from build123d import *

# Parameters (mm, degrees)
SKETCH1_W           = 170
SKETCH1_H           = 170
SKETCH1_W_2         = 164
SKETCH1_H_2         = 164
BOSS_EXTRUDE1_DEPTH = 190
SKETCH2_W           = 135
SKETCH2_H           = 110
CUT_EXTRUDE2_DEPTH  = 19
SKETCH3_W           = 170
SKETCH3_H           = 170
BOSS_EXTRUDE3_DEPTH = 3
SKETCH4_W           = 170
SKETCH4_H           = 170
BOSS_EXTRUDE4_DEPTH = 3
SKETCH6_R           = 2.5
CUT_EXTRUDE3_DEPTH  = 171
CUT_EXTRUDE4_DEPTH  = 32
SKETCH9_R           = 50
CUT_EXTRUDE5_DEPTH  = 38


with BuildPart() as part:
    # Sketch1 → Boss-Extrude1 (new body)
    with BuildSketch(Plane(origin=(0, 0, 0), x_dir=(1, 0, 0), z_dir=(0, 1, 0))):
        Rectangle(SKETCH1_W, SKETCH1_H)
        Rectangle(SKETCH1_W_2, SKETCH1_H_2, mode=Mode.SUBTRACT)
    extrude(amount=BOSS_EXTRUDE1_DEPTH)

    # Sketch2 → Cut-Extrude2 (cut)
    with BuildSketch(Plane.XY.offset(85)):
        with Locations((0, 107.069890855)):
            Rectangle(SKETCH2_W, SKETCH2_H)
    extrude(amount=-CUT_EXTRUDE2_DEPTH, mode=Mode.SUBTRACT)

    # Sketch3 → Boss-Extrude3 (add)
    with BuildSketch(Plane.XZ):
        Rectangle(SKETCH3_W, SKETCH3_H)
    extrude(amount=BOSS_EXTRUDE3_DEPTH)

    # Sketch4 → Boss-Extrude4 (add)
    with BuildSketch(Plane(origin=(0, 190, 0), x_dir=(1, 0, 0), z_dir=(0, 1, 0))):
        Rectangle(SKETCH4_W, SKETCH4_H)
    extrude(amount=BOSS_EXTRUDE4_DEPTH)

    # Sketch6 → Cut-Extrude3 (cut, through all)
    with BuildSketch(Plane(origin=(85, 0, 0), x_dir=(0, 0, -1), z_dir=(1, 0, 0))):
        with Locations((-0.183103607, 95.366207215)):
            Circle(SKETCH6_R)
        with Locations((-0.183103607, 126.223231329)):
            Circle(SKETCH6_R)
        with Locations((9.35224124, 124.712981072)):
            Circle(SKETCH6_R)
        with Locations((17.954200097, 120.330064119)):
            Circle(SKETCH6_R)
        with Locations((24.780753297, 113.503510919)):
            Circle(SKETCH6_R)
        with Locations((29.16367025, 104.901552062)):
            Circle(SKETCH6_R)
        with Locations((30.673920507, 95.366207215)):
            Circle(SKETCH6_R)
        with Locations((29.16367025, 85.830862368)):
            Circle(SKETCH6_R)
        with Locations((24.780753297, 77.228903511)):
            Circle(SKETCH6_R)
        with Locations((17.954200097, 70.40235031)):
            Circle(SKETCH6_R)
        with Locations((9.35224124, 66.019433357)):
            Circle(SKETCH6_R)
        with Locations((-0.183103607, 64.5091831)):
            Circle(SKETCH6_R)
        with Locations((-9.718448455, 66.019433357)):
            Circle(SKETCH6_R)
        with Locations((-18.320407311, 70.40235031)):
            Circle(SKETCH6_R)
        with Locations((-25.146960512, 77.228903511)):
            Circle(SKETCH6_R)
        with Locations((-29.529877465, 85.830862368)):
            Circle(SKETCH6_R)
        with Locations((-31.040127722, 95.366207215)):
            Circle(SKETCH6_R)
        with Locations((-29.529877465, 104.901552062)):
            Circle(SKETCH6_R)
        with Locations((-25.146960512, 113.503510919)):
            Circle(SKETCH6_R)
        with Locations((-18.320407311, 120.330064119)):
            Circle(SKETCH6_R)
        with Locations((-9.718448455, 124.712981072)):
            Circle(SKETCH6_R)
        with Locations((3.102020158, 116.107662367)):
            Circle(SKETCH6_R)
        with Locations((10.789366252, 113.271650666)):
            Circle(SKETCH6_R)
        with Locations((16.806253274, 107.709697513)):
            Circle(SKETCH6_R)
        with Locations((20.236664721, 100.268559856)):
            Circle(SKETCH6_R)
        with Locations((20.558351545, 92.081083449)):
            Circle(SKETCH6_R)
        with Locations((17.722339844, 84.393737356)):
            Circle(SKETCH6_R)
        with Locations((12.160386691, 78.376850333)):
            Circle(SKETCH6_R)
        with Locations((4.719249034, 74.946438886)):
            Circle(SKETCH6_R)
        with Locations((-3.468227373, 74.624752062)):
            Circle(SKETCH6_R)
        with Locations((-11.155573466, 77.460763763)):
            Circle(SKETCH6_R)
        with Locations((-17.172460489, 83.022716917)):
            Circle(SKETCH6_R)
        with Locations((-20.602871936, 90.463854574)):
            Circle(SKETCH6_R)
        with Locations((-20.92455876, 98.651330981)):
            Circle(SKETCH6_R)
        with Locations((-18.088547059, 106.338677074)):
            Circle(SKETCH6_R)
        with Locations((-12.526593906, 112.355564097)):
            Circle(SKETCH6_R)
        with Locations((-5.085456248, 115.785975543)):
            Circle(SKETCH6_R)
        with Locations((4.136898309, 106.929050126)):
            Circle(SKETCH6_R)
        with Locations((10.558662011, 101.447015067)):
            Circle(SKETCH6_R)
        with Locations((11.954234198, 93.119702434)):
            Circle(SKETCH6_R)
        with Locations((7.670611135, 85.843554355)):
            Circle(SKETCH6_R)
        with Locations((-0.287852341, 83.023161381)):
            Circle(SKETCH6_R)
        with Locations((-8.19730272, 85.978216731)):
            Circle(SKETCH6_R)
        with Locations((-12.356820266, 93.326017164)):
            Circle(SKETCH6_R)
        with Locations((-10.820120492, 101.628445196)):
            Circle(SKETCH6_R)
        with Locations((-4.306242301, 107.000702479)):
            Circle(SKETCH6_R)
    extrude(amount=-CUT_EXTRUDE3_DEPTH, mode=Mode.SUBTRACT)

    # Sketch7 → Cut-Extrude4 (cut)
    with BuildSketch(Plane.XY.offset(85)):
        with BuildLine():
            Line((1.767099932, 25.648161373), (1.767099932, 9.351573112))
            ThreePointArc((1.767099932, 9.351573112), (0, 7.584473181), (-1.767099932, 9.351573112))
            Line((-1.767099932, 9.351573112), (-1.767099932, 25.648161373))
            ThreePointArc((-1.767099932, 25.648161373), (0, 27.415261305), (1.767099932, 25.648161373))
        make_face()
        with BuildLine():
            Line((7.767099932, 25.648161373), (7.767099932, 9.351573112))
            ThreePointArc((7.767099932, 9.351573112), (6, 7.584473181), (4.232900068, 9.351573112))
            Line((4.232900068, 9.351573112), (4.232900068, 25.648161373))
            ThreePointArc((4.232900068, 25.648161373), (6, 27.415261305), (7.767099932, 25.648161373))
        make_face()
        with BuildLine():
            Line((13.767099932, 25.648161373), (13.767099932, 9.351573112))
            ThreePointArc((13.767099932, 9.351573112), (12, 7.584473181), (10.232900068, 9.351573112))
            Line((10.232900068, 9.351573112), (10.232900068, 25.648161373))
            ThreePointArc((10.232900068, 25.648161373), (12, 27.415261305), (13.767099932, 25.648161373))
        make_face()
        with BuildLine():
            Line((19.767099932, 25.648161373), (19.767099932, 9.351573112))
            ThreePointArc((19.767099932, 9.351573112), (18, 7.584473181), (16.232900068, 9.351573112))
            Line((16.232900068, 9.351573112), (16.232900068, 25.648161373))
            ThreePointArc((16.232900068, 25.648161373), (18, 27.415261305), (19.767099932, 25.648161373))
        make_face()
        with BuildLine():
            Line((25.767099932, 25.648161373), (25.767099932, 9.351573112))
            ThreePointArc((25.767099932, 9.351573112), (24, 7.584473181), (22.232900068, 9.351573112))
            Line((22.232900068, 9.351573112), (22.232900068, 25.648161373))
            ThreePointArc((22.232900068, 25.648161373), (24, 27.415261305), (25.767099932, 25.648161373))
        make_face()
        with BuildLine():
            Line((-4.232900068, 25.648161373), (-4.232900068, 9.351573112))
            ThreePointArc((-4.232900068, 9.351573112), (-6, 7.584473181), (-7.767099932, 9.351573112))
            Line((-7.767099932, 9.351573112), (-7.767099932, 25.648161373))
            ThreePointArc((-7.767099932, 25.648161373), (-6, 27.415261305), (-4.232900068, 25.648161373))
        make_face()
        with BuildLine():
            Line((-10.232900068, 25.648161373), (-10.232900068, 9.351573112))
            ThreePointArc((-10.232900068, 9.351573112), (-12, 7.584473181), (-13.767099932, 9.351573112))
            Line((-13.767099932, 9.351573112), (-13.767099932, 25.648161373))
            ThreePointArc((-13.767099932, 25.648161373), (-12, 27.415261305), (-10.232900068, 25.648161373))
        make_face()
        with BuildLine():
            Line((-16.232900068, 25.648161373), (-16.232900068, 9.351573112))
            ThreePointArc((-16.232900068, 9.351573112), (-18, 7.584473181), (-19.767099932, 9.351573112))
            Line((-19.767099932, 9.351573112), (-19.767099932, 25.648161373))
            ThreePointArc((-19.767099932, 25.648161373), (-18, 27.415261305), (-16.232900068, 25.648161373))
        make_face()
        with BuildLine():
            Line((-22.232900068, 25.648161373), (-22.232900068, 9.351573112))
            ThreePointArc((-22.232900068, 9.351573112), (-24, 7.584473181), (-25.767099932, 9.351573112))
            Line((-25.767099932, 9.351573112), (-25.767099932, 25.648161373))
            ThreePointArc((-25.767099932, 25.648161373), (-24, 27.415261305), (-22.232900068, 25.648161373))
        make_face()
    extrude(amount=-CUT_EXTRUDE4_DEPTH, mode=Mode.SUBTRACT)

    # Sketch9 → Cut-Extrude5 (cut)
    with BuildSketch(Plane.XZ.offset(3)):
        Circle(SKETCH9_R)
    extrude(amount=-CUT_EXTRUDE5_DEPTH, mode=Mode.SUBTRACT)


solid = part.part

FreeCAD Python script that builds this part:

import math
import FreeCAD as App
import Part
import Sketcher

V = App.Vector

doc = App.newDocument("Part")
body = doc.addObject("PartDesign::Body", "Body")

# Sketch on XZ plane
sketch1 = doc.addObject("Sketcher::SketchObject", "Sketch")
body.addObject(sketch1)
sketch1.AttachmentSupport = (doc.XZ_Plane, [""])
sketch1.MapMode = "FlatFace"
sketch1.addGeometry([
    Part.LineSegment(V(-85, -85, 0), V(-85, 85, 0)),  # 0
    Part.LineSegment(V(-85, 85, 0), V(85, 85, 0)),  # 1
    Part.LineSegment(V(85, 85, 0), V(85, -85, 0)),  # 2
    Part.LineSegment(V(85, -85, 0), V(-85, -85, 0)),  # 3
    Part.LineSegment(V(82, 82, 0), V(-82, 82, 0)),  # 4
    Part.LineSegment(V(-82, 82, 0), V(-82, -82, 0)),  # 5
    Part.LineSegment(V(-82, -82, 0), V(82, -82, 0)),  # 6
    Part.LineSegment(V(82, -82, 0), V(82, 82, 0)),  # 7
], False)
sketch1.addConstraint([
    Sketcher.Constraint("Coincident", 0, 2, 1, 1),
    Sketcher.Constraint("Coincident", 1, 2, 2, 1),
    Sketcher.Constraint("Coincident", 2, 2, 3, 1),
    Sketcher.Constraint("Coincident", 3, 2, 0, 1),
    Sketcher.Constraint("Coincident", 4, 2, 5, 1),
    Sketcher.Constraint("Coincident", 5, 2, 6, 1),
    Sketcher.Constraint("Coincident", 6, 2, 7, 1),
    Sketcher.Constraint("Coincident", 7, 2, 4, 1),
    Sketcher.Constraint("Vertical", 0),
    Sketcher.Constraint("Horizontal", 1),
    Sketcher.Constraint("Vertical", 2),
    Sketcher.Constraint("Horizontal", 3),
    Sketcher.Constraint("Horizontal", 4),
    Sketcher.Constraint("Vertical", 5),
    Sketcher.Constraint("Horizontal", 6),
    Sketcher.Constraint("Vertical", 7),
    Sketcher.Constraint("Symmetric", 0, 2, 2, 2, -1, 1),
    Sketcher.Constraint("Symmetric", 4, 2, 6, 2, -1, 1),
    Sketcher.Constraint("Equal", 3, 0),
    Sketcher.Constraint("Equal", 6, 5),
    Sketcher.Constraint("DistanceX", 1, 1, 1, 2, 170.0),
    Sketcher.Constraint("DistanceX", 4, 2, 4, 1, 164.0),
])
pad1 = doc.addObject("PartDesign::Pad", "Pad")
body.addObject(pad1)
pad1.Profile = sketch1
pad1.Length = 190
pad1.Reversed = True

# Sketch on XY plane
sketch2 = doc.addObject("Sketcher::SketchObject", "Sketch001")
body.addObject(sketch2)
sketch2.AttachmentSupport = (doc.XY_Plane, [""])
sketch2.MapMode = "FlatFace"
sketch2.AttachmentOffset = App.Placement(V(0, 0, 85), App.Rotation())
sketch2.addGeometry([
    Part.LineSegment(V(-68, 162, 0), V(-68, 52, 0)),
    Part.LineSegment(V(-68, 52, 0), V(68, 52, 0)),
    Part.LineSegment(V(68, 52, 0), V(68, 162, 0)),
    Part.LineSegment(V(68, 162, 0), V(-68, 162, 0)),
], False)
sketch2.addConstraint([
    Sketcher.Constraint("Coincident", 0, 2, 1, 1),
    Sketcher.Constraint("Coincident", 1, 2, 2, 1),
    Sketcher.Constraint("Coincident", 2, 2, 3, 1),
    Sketcher.Constraint("Coincident", 3, 2, 0, 1),
    Sketcher.Constraint("Vertical", 0),
    Sketcher.Constraint("Horizontal", 1),
    Sketcher.Constraint("Vertical", 2),
    Sketcher.Constraint("Horizontal", 3),
    Sketcher.Constraint("DistanceX", 1, 1, 1, 2, 135.0),
    Sketcher.Constraint("DistanceY", 0, 2, 0, 1, 110.0),
    Sketcher.Constraint("DistanceX", 0, 2, -1, 1, 67.5),
    Sketcher.Constraint("DistanceY", -1, 1, 0, 2, 52.069891),
])
pocket1 = doc.addObject("PartDesign::Pocket", "Pocket")
body.addObject(pocket1)
pocket1.Profile = sketch2
pocket1.Length = 19

# Sketch on XZ plane
sketch3 = doc.addObject("Sketcher::SketchObject", "Sketch002")
body.addObject(sketch3)
sketch3.AttachmentSupport = (doc.XZ_Plane, [""])
sketch3.MapMode = "FlatFace"
sketch3.addGeometry([
    Part.LineSegment(V(-85, 85, 0), V(-85, -85, 0)),
    Part.LineSegment(V(-85, -85, 0), V(85, -85, 0)),
    Part.LineSegment(V(85, -85, 0), V(85, 85, 0)),
    Part.LineSegment(V(85, 85, 0), V(-85, 85, 0)),
], False)
sketch3.addConstraint([
    Sketcher.Constraint("Coincident", 0, 2, 1, 1),
    Sketcher.Constraint("Coincident", 1, 2, 2, 1),
    Sketcher.Constraint("Coincident", 2, 2, 3, 1),
    Sketcher.Constraint("Coincident", 3, 2, 0, 1),
    Sketcher.Constraint("Vertical", 0),
    Sketcher.Constraint("Horizontal", 1),
    Sketcher.Constraint("Vertical", 2),
    Sketcher.Constraint("Horizontal", 3),
    Sketcher.Constraint("Symmetric", 0, 2, 2, 2, -1, 1),
    Sketcher.Constraint("Equal", 3, 0),
    Sketcher.Constraint("DistanceX", 1, 1, 1, 2, 170.0),
])
pad2 = doc.addObject("PartDesign::Pad", "Pad001")
body.addObject(pad2)
pad2.Profile = sketch3
pad2.Length = 3

# Sketch on XZ plane
sketch4 = doc.addObject("Sketcher::SketchObject", "Sketch003")
body.addObject(sketch4)
sketch4.AttachmentSupport = (doc.XZ_Plane, [""])
sketch4.MapMode = "FlatFace"
sketch4.AttachmentOffset = App.Placement(V(0, 0, -190), App.Rotation())
sketch4.addGeometry([
    Part.LineSegment(V(-85, -85, 0), V(-85, 85, 0)),
    Part.LineSegment(V(-85, 85, 0), V(85, 85, 0)),
    Part.LineSegment(V(85, 85, 0), V(85, -85, 0)),
    Part.LineSegment(V(85, -85, 0), V(-85, -85, 0)),
], False)
sketch4.addConstraint([
    Sketcher.Constraint("Coincident", 0, 2, 1, 1),
    Sketcher.Constraint("Coincident", 1, 2, 2, 1),
    Sketcher.Constraint("Coincident", 2, 2, 3, 1),
    Sketcher.Constraint("Coincident", 3, 2, 0, 1),
    Sketcher.Constraint("Vertical", 0),
    Sketcher.Constraint("Horizontal", 1),
    Sketcher.Constraint("Vertical", 2),
    Sketcher.Constraint("Horizontal", 3),
    Sketcher.Constraint("Symmetric", 0, 2, 2, 2, -1, 1),
    Sketcher.Constraint("Equal", 3, 0),
    Sketcher.Constraint("DistanceX", 1, 1, 1, 2, 170.0),
])
pad3 = doc.addObject("PartDesign::Pad", "Pad002")
body.addObject(pad3)
pad3.Profile = sketch4
pad3.Length = 3
pad3.Reversed = True

# Sketch on YZ plane
sketch5 = doc.addObject("Sketcher::SketchObject", "Sketch004")
body.addObject(sketch5)
sketch5.AttachmentSupport = (doc.YZ_Plane, [""])
sketch5.MapMode = "FlatFace"
sketch5.AttachmentOffset = App.Placement(V(0, 0, 85), App.Rotation())
sketch5.addGeometry([
    Part.Circle(V(95.4, 0.2, 0), V(0, 0, 1), 2.5),  # 0
    Part.Circle(V(126.2, 0.2, 0), V(0, 0, 1), 2.5),  # 1
    Part.Circle(V(124.7, -9.4, 0), V(0, 0, 1), 2.5),  # 2
    Part.Circle(V(120.3, -18, 0), V(0, 0, 1), 2.5),  # 3
    Part.Circle(V(113.5, -24.8, 0), V(0, 0, 1), 2.5),  # 4
    Part.Circle(V(104.9, -29.2, 0), V(0, 0, 1), 2.5),  # 5
    Part.Circle(V(95.4, -30.7, 0), V(0, 0, 1), 2.5),  # 6
    Part.Circle(V(85.8, -29.2, 0), V(0, 0, 1), 2.5),  # 7
    Part.Circle(V(77.2, -24.8, 0), V(0, 0, 1), 2.5),  # 8
    Part.Circle(V(70.4, -18, 0), V(0, 0, 1), 2.5),  # 9
    Part.Circle(V(66, -9.4, 0), V(0, 0, 1), 2.5),  # 10
    Part.Circle(V(64.5, 0.2, 0), V(0, 0, 1), 2.5),  # 11
    Part.Circle(V(66, 9.7, 0), V(0, 0, 1), 2.5),  # 12
    Part.Circle(V(70.4, 18.3, 0), V(0, 0, 1), 2.5),  # 13
    Part.Circle(V(77.2, 25.1, 0), V(0, 0, 1), 2.5),  # 14
    Part.Circle(V(85.8, 29.5, 0), V(0, 0, 1), 2.5),  # 15
    Part.Circle(V(95.4, 31, 0), V(0, 0, 1), 2.5),  # 16
    Part.Circle(V(104.9, 29.5, 0), V(0, 0, 1), 2.5),  # 17
    Part.Circle(V(113.5, 25.1, 0), V(0, 0, 1), 2.5),  # 18
    Part.Circle(V(120.3, 18.3, 0), V(0, 0, 1), 2.5),  # 19
    Part.Circle(V(124.7, 9.7, 0), V(0, 0, 1), 2.5),  # 20
    Part.Circle(V(116.1, -3.1, 0), V(0, 0, 1), 2.5),  # 21
    Part.Circle(V(113.3, -10.8, 0), V(0, 0, 1), 2.5),  # 22
    Part.Circle(V(107.7, -16.8, 0), V(0, 0, 1), 2.5),  # 23
    Part.Circle(V(100.3, -20.2, 0), V(0, 0, 1), 2.5),  # 24
    Part.Circle(V(92.1, -20.6, 0), V(0, 0, 1), 2.5),  # 25
    Part.Circle(V(84.4, -17.7, 0), V(0, 0, 1), 2.5),  # 26
    Part.Circle(V(78.4, -12.2, 0), V(0, 0, 1), 2.5),  # 27
    Part.Circle(V(74.9, -4.7, 0), V(0, 0, 1), 2.5),  # 28
    Part.Circle(V(74.6, 3.5, 0), V(0, 0, 1), 2.5),  # 29
    Part.Circle(V(77.5, 11.2, 0), V(0, 0, 1), 2.5),  # 30
    Part.Circle(V(83, 17.2, 0), V(0, 0, 1), 2.5),  # 31
    Part.Circle(V(90.5, 20.6, 0), V(0, 0, 1), 2.5),  # 32
    Part.Circle(V(98.7, 20.9, 0), V(0, 0, 1), 2.5),  # 33
    Part.Circle(V(106.3, 18.1, 0), V(0, 0, 1), 2.5),  # 34
    Part.Circle(V(112.4, 12.5, 0), V(0, 0, 1), 2.5),  # 35
    Part.Circle(V(115.8, 5.1, 0), V(0, 0, 1), 2.5),  # 36
    Part.Circle(V(106.9, -4.1, 0), V(0, 0, 1), 2.5),  # 37
    Part.Circle(V(101.4, -10.6, 0), V(0, 0, 1), 2.5),  # 38
    Part.Circle(V(93.1, -12, 0), V(0, 0, 1), 2.5),  # 39
    Part.Circle(V(85.8, -7.7, 0), V(0, 0, 1), 2.5),  # 40
    Part.Circle(V(83, 0.3, 0), V(0, 0, 1), 2.5),  # 41
    Part.Circle(V(86, 8.2, 0), V(0, 0, 1), 2.5),  # 42
    Part.Circle(V(93.3, 12.4, 0), V(0, 0, 1), 2.5),  # 43
    Part.Circle(V(101.6, 10.8, 0), V(0, 0, 1), 2.5),  # 44
    Part.Circle(V(107, 4.3, 0), V(0, 0, 1), 2.5),  # 45
], False)
sketch5.addConstraint([
    Sketcher.Constraint("Equal", 0, 1),
    Sketcher.Constraint("Equal", 1, 2),
    Sketcher.Constraint("Equal", 2, 3),
    Sketcher.Constraint("Equal", 3, 4),
    Sketcher.Constraint("Equal", 4, 5),
    Sketcher.Constraint("Equal", 5, 6),
    Sketcher.Constraint("Equal", 6, 7),
    Sketcher.Constraint("Equal", 7, 8),
    Sketcher.Constraint("Equal", 8, 9),
    Sketcher.Constraint("Equal", 9, 10),
    Sketcher.Constraint("Equal", 10, 11),
    Sketcher.Constraint("Equal", 11, 12),
    Sketcher.Constraint("Equal", 12, 13),
    Sketcher.Constraint("Equal", 13, 14),
    Sketcher.Constraint("Equal", 14, 15),
    Sketcher.Constraint("Equal", 15, 16),
    Sketcher.Constraint("Equal", 16, 17),
    Sketcher.Constraint("Equal", 17, 18),
    Sketcher.Constraint("Equal", 18, 19),
    Sketcher.Constraint("Equal", 19, 20),
    Sketcher.Constraint("Equal", 20, 21),
    Sketcher.Constraint("Equal", 21, 22),
    Sketcher.Constraint("Equal", 22, 23),
    Sketcher.Constraint("Equal", 23, 24),
    Sketcher.Constraint("Equal", 24, 25),
    Sketcher.Constraint("Equal", 25, 26),
    Sketcher.Constraint("Equal", 26, 27),
    Sketcher.Constraint("Equal", 27, 28),
    Sketcher.Constraint("Equal", 28, 29),
    Sketcher.Constraint("Equal", 29, 30),
    Sketcher.Constraint("Equal", 30, 31),
    Sketcher.Constraint("Equal", 31, 32),
    Sketcher.Constraint("Equal", 32, 33),
    Sketcher.Constraint("Equal", 33, 34),
    Sketcher.Constraint("Equal", 34, 35),
    Sketcher.Constraint("Equal", 35, 36),
    Sketcher.Constraint("Equal", 36, 37),
    Sketcher.Constraint("Equal", 37, 38),
    Sketcher.Constraint("Equal", 38, 39),
    Sketcher.Constraint("Equal", 39, 40),
    Sketcher.Constraint("Equal", 40, 41),
    Sketcher.Constraint("Equal", 41, 42),
    Sketcher.Constraint("Equal", 42, 43),
    Sketcher.Constraint("Equal", 43, 44),
    Sketcher.Constraint("Equal", 44, 45),
    Sketcher.Constraint("Horizontal", 0, 3, 1, 3),
    Sketcher.Constraint("Horizontal", 5, 3, 7, 3),
    Sketcher.Constraint("Horizontal", 4, 3, 8, 3),
    Sketcher.Constraint("Horizontal", 3, 3, 9, 3),
    Sketcher.Constraint("Horizontal", 2, 3, 10, 3),
    Sketcher.Constraint("Horizontal", 1, 3, 11, 3),
    Sketcher.Constraint("Horizontal", 15, 3, 17, 3),
    Sketcher.Constraint("Horizontal", 14, 3, 18, 3),
    Sketcher.Constraint("Horizontal", 13, 3, 19, 3),
    Sketcher.Constraint("Horizontal", 12, 3, 20, 3),
    Sketcher.Constraint("Vertical", 0, 3, 6, 3),
    Sketcher.Constraint("Vertical", 10, 3, 12, 3),
    Sketcher.Constraint("Vertical", 9, 3, 13, 3),
    Sketcher.Constraint("Vertical", 8, 3, 14, 3),
    Sketcher.Constraint("Vertical", 7, 3, 15, 3),
    Sketcher.Constraint("Vertical", 6, 3, 16, 3),
    Sketcher.Constraint("Vertical", 5, 3, 17, 3),
    Sketcher.Constraint("Vertical", 4, 3, 18, 3),
    Sketcher.Constraint("Vertical", 3, 3, 19, 3),
    Sketcher.Constraint("Vertical", 2, 3, 20, 3),
    Sketcher.Constraint("Diameter", 0, 5.0),
    Sketcher.Constraint("DistanceY", 37, 3, 0, 3, 4.320002),
    Sketcher.Constraint("DistanceY", 3, 3, -1, 1, 17.9542),
    Sketcher.Constraint("DistanceY", 37, 3, -1, 1, 4.136898),
    Sketcher.Constraint("DistanceX", 7, 3, 3, 3, 34.499202),
    Sketcher.Constraint("DistanceX", 9, 3, 5, 3, 34.499202),
    Sketcher.Constraint("DistanceY", 8, 3, 12, 3, 34.499202),
    Sketcher.Constraint("DistanceY", 10, 3, 14, 3, 34.499202),
    Sketcher.Constraint("DistanceX", 21, 3, 3, 3, 4.222402),
    Sketcher.Constraint("DistanceY", 4, 3, 23, 3, 7.9745),
    Sketcher.Constraint("DistanceY", 24, 3, 22, 3, 9.447298),
    Sketcher.Constraint("DistanceY", 8, 3, 25, 3, 4.222402),
    Sketcher.Constraint("DistanceX", 9, 3, 27, 3, 7.9745),
    Sketcher.Constraint("DistanceX", 28, 3, 26, 3, 9.447298),
    Sketcher.Constraint("DistanceX", 13, 3, 29, 3, 4.222402),
    Sketcher.Constraint("DistanceY", 31, 3, 14, 3, 7.9745),
    Sketcher.Constraint("DistanceY", 30, 3, 32, 3, 9.447298),
    Sketcher.Constraint("DistanceY", 33, 3, 18, 3, 4.222402),
    Sketcher.Constraint("DistanceX", 35, 3, 19, 3, 7.9745),
    Sketcher.Constraint("DistanceX", 37, 3, 22, 3, 6.342601),
    Sketcher.Constraint("DistanceY", 28, 3, 41, 3, 5.007101),
    Sketcher.Constraint("DistanceX", 31, 3, 42, 3, 2.9555),
    Sketcher.Constraint("DistanceY", 0, 3, 42, 3, 8.014199),
    Sketcher.Constraint("DistanceX", 42, 3, 43, 3, 7.3478),
    Sketcher.Constraint("DistanceY", 44, 3, 43, 3, 1.5367),
    Sketcher.Constraint("DistanceX", -1, 1, 1, 3, 126.223231),
    Sketcher.Constraint("DistanceX", -1, 1, 2, 3, 124.712981),
    Sketcher.Constraint("DistanceY", 2, 3, -1, 1, 9.352241),
    Sketcher.Constraint("DistanceX", -1, 1, 4, 3, 113.503511),
    Sketcher.Constraint("DistanceY", 5, 3, -1, 1, 29.16367),
    Sketcher.Constraint("DistanceY", 6, 3, -1, 1, 30.673921),
    Sketcher.Constraint("DistanceX", -1, 1, 9, 3, 70.40235),
    Sketcher.Constraint("DistanceY", -1, 1, 12, 3, 9.718448),
    Sketcher.Constraint("DistanceY", 21, 3, -1, 1, 3.10202),
    Sketcher.Constraint("DistanceX", -1, 1, 22, 3, 113.271651),
    Sketcher.Constraint("DistanceX", -1, 1, 24, 3, 100.26856),
    Sketcher.Constraint("DistanceY", 26, 3, -1, 1, 17.72234),
    Sketcher.Constraint("DistanceX", -1, 1, 28, 3, 74.946439),
    Sketcher.Constraint("DistanceY", 28, 3, -1, 1, 4.719249),
    Sketcher.Constraint("DistanceY", -1, 1, 32, 3, 20.602872),
    Sketcher.Constraint("DistanceX", -1, 1, 33, 3, 98.651331),
    Sketcher.Constraint("DistanceY", 40, 3, -1, 1, 7.670611),
    Sketcher.Constraint("DistanceX", -1, 1, 41, 3, 83.023161),
    Sketcher.Constraint("DistanceY", -1, 1, 43, 3, 12.35682),
    Sketcher.Constraint("DistanceX", 7, 3, 5, 3, 19.07069),
    Sketcher.Constraint("DistanceX", 8, 3, 7, 3, 8.601959),
    Sketcher.Constraint("DistanceX", 10, 3, 8, 3, 11.20947),
    Sketcher.Constraint("DistanceX", 11, 3, 10, 3, 1.51025),
    Sketcher.Constraint("DistanceY", 12, 3, 13, 3, 8.601959),
    Sketcher.Constraint("DistanceY", 13, 3, 15, 3, 11.20947),
    Sketcher.Constraint("DistanceY", 15, 3, 16, 3, 1.51025),
    Sketcher.Constraint("DistanceY", 22, 3, 1, 3, 10.97247),
    Sketcher.Constraint("DistanceX", 7, 3, 25, 3, 6.250221),
    Sketcher.Constraint("DistanceY", 29, 3, 12, 3, 6.250221),
    Sketcher.Constraint("DistanceX", 29, 3, 30, 3, 2.836012),
    Sketcher.Constraint("DistanceX", 14, 3, 32, 3, 13.234951),
    Sketcher.Constraint("DistanceY", 34, 3, 33, 3, 2.836012),
    Sketcher.Constraint("DistanceX", 35, 3, 36, 3, 3.430411),
    Sketcher.Constraint("DistanceY", 36, 3, 19, 3, 13.234951),
    Sketcher.Constraint("DistanceY", 23, 3, 38, 3, 6.247591),
    Sketcher.Constraint("DistanceX", 25, 3, 39, 3, 1.038619),
    Sketcher.Constraint("DistanceY", 24, 3, 39, 3, 8.282431),
    Sketcher.Constraint("DistanceX", 40, 3, 39, 3, 7.276148),
    Sketcher.Constraint("DistanceX", 42, 3, 0, 3, 9.38799),
    Sketcher.Constraint("DistanceX", 43, 3, 44, 3, 8.302428),
    Sketcher.Constraint("DistanceX", 44, 3, 34, 3, 4.710232),
    Sketcher.Constraint("DistanceX", 44, 3, 35, 3, 10.727119),
    Sketcher.Constraint("DistanceY", 45, 3, 44, 3, 6.513878),
    Sketcher.Constraint("DistanceX", 45, 3, 35, 3, 5.354862),
    Sketcher.Constraint("DistanceY", 45, 3, 35, 3, 8.220352),
    Sketcher.Constraint("DistanceX", -1, 1, 23, 3, 107.709698),
    Sketcher.Constraint("DistanceY", 27, 3, -1, 1, 12.160387),
    Sketcher.Constraint("DistanceX", -1, 1, 38, 3, 101.447015),
])
pocket2 = doc.addObject("PartDesign::Pocket", "Pocket001")
body.addObject(pocket2)
pocket2.Profile = sketch5
pocket2.Type = "ThroughAll"

# Sketch on XY plane
sketch6 = doc.addObject("Sketcher::SketchObject", "Sketch005")
body.addObject(sketch6)
sketch6.AttachmentSupport = (doc.XY_Plane, [""])
sketch6.MapMode = "FlatFace"
sketch6.AttachmentOffset = App.Placement(V(0, 0, 85), App.Rotation())
sketch6.addGeometry([
    Part.LineSegment(V(1.8, 9.4, 0), V(1.8, 25.6, 0)),  # 0
    Part.ArcOfCircle(Part.Circle(V(0, 25.6, 0), V(0, 0, 1), 1.8), math.radians(0), math.radians(180)),  # 1
    Part.LineSegment(V(-1.8, 25.6, 0), V(-1.8, 9.4, 0)),  # 2
    Part.ArcOfCircle(Part.Circle(V(0, 9.4, 0), V(0, 0, 1), 1.8), math.radians(-180), math.radians(0)),  # 3
    Part.LineSegment(V(7.8, 9.4, 0), V(7.8, 25.6, 0)),  # 4
    Part.ArcOfCircle(Part.Circle(V(6, 25.6, 0), V(0, 0, 1), 1.8), math.radians(0), math.radians(180)),  # 5
    Part.LineSegment(V(4.2, 25.6, 0), V(4.2, 9.4, 0)),  # 6
    Part.ArcOfCircle(Part.Circle(V(6, 9.4, 0), V(0, 0, 1), 1.8), math.radians(-180), math.radians(0)),  # 7
    Part.LineSegment(V(13.8, 9.4, 0), V(13.8, 25.6, 0)),  # 8
    Part.ArcOfCircle(Part.Circle(V(12, 25.6, 0), V(0, 0, 1), 1.8), math.radians(0), math.radians(180)),  # 9
    Part.LineSegment(V(10.2, 25.6, 0), V(10.2, 9.4, 0)),  # 10
    Part.ArcOfCircle(Part.Circle(V(12, 9.4, 0), V(0, 0, 1), 1.8), math.radians(-180), math.radians(0)),  # 11
    Part.LineSegment(V(19.8, 9.4, 0), V(19.8, 25.6, 0)),  # 12
    Part.ArcOfCircle(Part.Circle(V(18, 25.6, 0), V(0, 0, 1), 1.8), math.radians(0), math.radians(180)),  # 13
    Part.LineSegment(V(16.2, 25.6, 0), V(16.2, 9.4, 0)),  # 14
    Part.ArcOfCircle(Part.Circle(V(18, 9.4, 0), V(0, 0, 1), 1.8), math.radians(-180), math.radians(0)),  # 15
    Part.LineSegment(V(25.8, 9.4, 0), V(25.8, 25.6, 0)),  # 16
    Part.ArcOfCircle(Part.Circle(V(24, 25.6, 0), V(0, 0, 1), 1.8), math.radians(0), math.radians(180)),  # 17
    Part.LineSegment(V(22.2, 25.6, 0), V(22.2, 9.4, 0)),  # 18
    Part.ArcOfCircle(Part.Circle(V(24, 9.4, 0), V(0, 0, 1), 1.8), math.radians(-180), math.radians(0)),  # 19
    Part.LineSegment(V(-4.2, 9.4, 0), V(-4.2, 25.6, 0)),  # 20
    Part.ArcOfCircle(Part.Circle(V(-6, 25.6, 0), V(0, 0, 1), 1.8), math.radians(0), math.radians(180)),  # 21
    Part.LineSegment(V(-7.8, 25.6, 0), V(-7.8, 9.4, 0)),  # 22
    Part.ArcOfCircle(Part.Circle(V(-6, 9.4, 0), V(0, 0, 1), 1.8), math.radians(-180), math.radians(0)),  # 23
    Part.LineSegment(V(-10.2, 9.4, 0), V(-10.2, 25.6, 0)),  # 24
    Part.ArcOfCircle(Part.Circle(V(-12, 25.6, 0), V(0, 0, 1), 1.8), math.radians(0), math.radians(180)),  # 25
    Part.LineSegment(V(-13.8, 25.6, 0), V(-13.8, 9.4, 0)),  # 26
    Part.ArcOfCircle(Part.Circle(V(-12, 9.4, 0), V(0, 0, 1), 1.8), math.radians(-180), math.radians(0)),  # 27
    Part.LineSegment(V(-16.2, 9.4, 0), V(-16.2, 25.6, 0)),  # 28
    Part.ArcOfCircle(Part.Circle(V(-18, 25.6, 0), V(0, 0, 1), 1.8), math.radians(0), math.radians(180)),  # 29
    Part.LineSegment(V(-19.8, 25.6, 0), V(-19.8, 9.4, 0)),  # 30
    Part.ArcOfCircle(Part.Circle(V(-18, 9.4, 0), V(0, 0, 1), 1.8), math.radians(-180), math.radians(0)),  # 31
    Part.LineSegment(V(-22.2, 9.4, 0), V(-22.2, 25.6, 0)),  # 32
    Part.ArcOfCircle(Part.Circle(V(-24, 25.6, 0), V(0, 0, 1), 1.8), math.radians(0), math.radians(180)),  # 33
    Part.LineSegment(V(-25.8, 25.6, 0), V(-25.8, 9.4, 0)),  # 34
    Part.ArcOfCircle(Part.Circle(V(-24, 9.4, 0), V(0, 0, 1), 1.8), math.radians(-180), math.radians(0)),  # 35
], False)
sketch6.addConstraint([
    Sketcher.Constraint("Tangent", 0, 2, 1, 1),
    Sketcher.Constraint("Tangent", 1, 2, 2, 1),
    Sketcher.Constraint("Tangent", 2, 2, 3, 1),
    Sketcher.Constraint("Tangent", 3, 2, 0, 1),
    Sketcher.Constraint("Tangent", 4, 2, 5, 1),
    Sketcher.Constraint("Tangent", 5, 2, 6, 1),
    Sketcher.Constraint("Tangent", 6, 2, 7, 1),
    Sketcher.Constraint("Tangent", 7, 2, 4, 1),
    Sketcher.Constraint("Tangent", 8, 2, 9, 1),
    Sketcher.Constraint("Tangent", 9, 2, 10, 1),
    Sketcher.Constraint("Tangent", 10, 2, 11, 1),
    Sketcher.Constraint("Tangent", 11, 2, 8, 1),
    Sketcher.Constraint("Tangent", 12, 2, 13, 1),
    Sketcher.Constraint("Tangent", 13, 2, 14, 1),
    Sketcher.Constraint("Tangent", 14, 2, 15, 1),
    Sketcher.Constraint("Tangent", 15, 2, 12, 1),
    Sketcher.Constraint("Tangent", 16, 2, 17, 1),
    Sketcher.Constraint("Tangent", 17, 2, 18, 1),
    Sketcher.Constraint("Tangent", 18, 2, 19, 1),
    Sketcher.Constraint("Tangent", 19, 2, 16, 1),
    Sketcher.Constraint("Tangent", 20, 2, 21, 1),
    Sketcher.Constraint("Tangent", 21, 2, 22, 1),
    Sketcher.Constraint("Tangent", 22, 2, 23, 1),
    Sketcher.Constraint("Tangent", 23, 2, 20, 1),
    Sketcher.Constraint("Tangent", 24, 2, 25, 1),
    Sketcher.Constraint("Tangent", 25, 2, 26, 1),
    Sketcher.Constraint("Tangent", 26, 2, 27, 1),
    Sketcher.Constraint("Tangent", 27, 2, 24, 1),
    Sketcher.Constraint("Tangent", 28, 2, 29, 1),
    Sketcher.Constraint("Tangent", 29, 2, 30, 1),
    Sketcher.Constraint("Tangent", 30, 2, 31, 1),
    Sketcher.Constraint("Tangent", 31, 2, 28, 1),
    Sketcher.Constraint("Tangent", 32, 2, 33, 1),
    Sketcher.Constraint("Tangent", 33, 2, 34, 1),
    Sketcher.Constraint("Tangent", 34, 2, 35, 1),
    Sketcher.Constraint("Tangent", 35, 2, 32, 1),
    Sketcher.Constraint("Vertical", 0),
    Sketcher.Constraint("Vertical", 2),
    Sketcher.Constraint("Vertical", 4),
    Sketcher.Constraint("Vertical", 6),
    Sketcher.Constraint("Vertical", 8),
    Sketcher.Constraint("Vertical", 10),
    Sketcher.Constraint("Vertical", 12),
    Sketcher.Constraint("Vertical", 14),
    Sketcher.Constraint("Vertical", 16),
    Sketcher.Constraint("Vertical", 18),
    Sketcher.Constraint("Vertical", 20),
    Sketcher.Constraint("Vertical", 22),
    Sketcher.Constraint("Vertical", 24),
    Sketcher.Constraint("Vertical", 26),
    Sketcher.Constraint("Vertical", 28),
    Sketcher.Constraint("Vertical", 30),
    Sketcher.Constraint("Vertical", 32),
    Sketcher.Constraint("Vertical", 34),
    Sketcher.Constraint("Equal", 3, 5),
    Sketcher.Constraint("Equal", 7, 9),
    Sketcher.Constraint("Equal", 11, 13),
    Sketcher.Constraint("Equal", 15, 17),
    Sketcher.Constraint("Equal", 19, 21),
    Sketcher.Constraint("Equal", 23, 25),
    Sketcher.Constraint("Equal", 27, 29),
    Sketcher.Constraint("Equal", 31, 33),
    Sketcher.Constraint("Symmetric", 5, 3, 21, 3, -2),
    Sketcher.Constraint("Symmetric", 9, 3, 25, 3, -2),
    Sketcher.Constraint("Symmetric", 13, 3, 29, 3, -2),
    Sketcher.Constraint("Symmetric", 17, 3, 33, 3, -2),
    Sketcher.Constraint("PointOnObject", 1, 3, -2),
    Sketcher.Constraint("Horizontal", 1, 3, 5, 3),
    Sketcher.Constraint("Horizontal", 3, 3, 7, 3),
    Sketcher.Constraint("Horizontal", 5, 3, 9, 3),
    Sketcher.Constraint("Horizontal", 7, 3, 11, 3),
    Sketcher.Constraint("Horizontal", 9, 3, 13, 3),
    Sketcher.Constraint("Horizontal", 11, 3, 15, 3),
    Sketcher.Constraint("Horizontal", 13, 3, 17, 3),
    Sketcher.Constraint("Horizontal", 15, 3, 19, 3),
    Sketcher.Constraint("Horizontal", 19, 3, 23, 3),
    Sketcher.Constraint("Horizontal", 23, 3, 27, 3),
    Sketcher.Constraint("Horizontal", 27, 3, 31, 3),
    Sketcher.Constraint("Horizontal", 31, 3, 35, 3),
    Sketcher.Constraint("DistanceX", -1, 1, 5, 3, 6.0),
    Sketcher.Constraint("DistanceX", -1, 1, 9, 3, 12.0),
    Sketcher.Constraint("DistanceX", -1, 1, 13, 3, 18.0),
    Sketcher.Constraint("DistanceX", -1, 1, 17, 3, 24.0),
    Sketcher.Constraint("Radius", 1, 1.7671),
    Sketcher.Constraint("DistanceY", 0, 1, 0, 2, 16.296588),
    Sketcher.Constraint("DistanceY", -1, 1, 1, 3, 25.648161),
])
pocket3 = doc.addObject("PartDesign::Pocket", "Pocket002")
body.addObject(pocket3)
pocket3.Profile = sketch6
pocket3.Length = 32

# Sketch on XZ plane
sketch7 = doc.addObject("Sketcher::SketchObject", "Sketch006")
body.addObject(sketch7)
sketch7.AttachmentSupport = (doc.XZ_Plane, [""])
sketch7.MapMode = "FlatFace"
sketch7.AttachmentOffset = App.Placement(V(0, 0, 3), App.Rotation())
sketch7.addGeometry(Part.Circle(V(0, 0, 0), V(0, 0, 1), 50), False)
sketch7.addConstraint([
    Sketcher.Constraint("Coincident", 0, 3, -1, 1),
    Sketcher.Constraint("Diameter", 0, 100.0),
])
pocket4 = doc.addObject("PartDesign::Pocket", "Pocket003")
body.addObject(pocket4)
pocket4.Profile = sketch7
pocket4.Length = 38

doc.recompute()
